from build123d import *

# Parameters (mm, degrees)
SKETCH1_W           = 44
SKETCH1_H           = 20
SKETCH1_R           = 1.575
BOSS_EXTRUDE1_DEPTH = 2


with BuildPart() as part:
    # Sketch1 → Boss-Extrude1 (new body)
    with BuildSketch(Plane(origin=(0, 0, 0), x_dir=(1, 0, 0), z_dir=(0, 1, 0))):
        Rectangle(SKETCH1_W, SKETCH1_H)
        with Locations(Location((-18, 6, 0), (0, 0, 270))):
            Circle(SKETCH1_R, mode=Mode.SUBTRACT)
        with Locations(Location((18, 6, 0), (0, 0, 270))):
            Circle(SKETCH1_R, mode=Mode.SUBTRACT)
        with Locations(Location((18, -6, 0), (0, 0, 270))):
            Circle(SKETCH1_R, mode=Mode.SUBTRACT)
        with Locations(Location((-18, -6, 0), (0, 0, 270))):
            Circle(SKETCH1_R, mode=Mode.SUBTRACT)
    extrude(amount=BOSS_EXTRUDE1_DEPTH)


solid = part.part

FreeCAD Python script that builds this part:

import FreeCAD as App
import Part
import Sketcher

V = App.Vector
Q = App.Units.Quantity

doc = App.newDocument("Part")
body = doc.addObject("PartDesign::Body", "Body")

sketch1 = body.newObject("Sketcher::SketchObject", "Sketch")
sketch1.AttachmentSupport = (doc.getObject("XZ_Plane"), [""])
sketch1.MapMode = "FlatFace"
sketch1.addGeometry(Part.LineSegment(V(-22, -10, 0), V(-22, 10, 0)), False)
sketch1.addGeometry(Part.LineSegment(V(-22, 10, 0), V(22, 10, 0)), False)
sketch1.addGeometry(Part.LineSegment(V(22, 10, 0), V(22, -10, 0)), False)
sketch1.addGeometry(Part.LineSegment(V(22, -10, 0), V(-22, -10, 0)), False)
sketch1.addGeometry(Part.Circle(V(-18, 6, 0), V(0, 0, 1), 1.575), False)
sketch1.addGeometry(Part.Circle(V(18, 6, 0), V(0, 0, 1), 1.575), False)
sketch1.addGeometry(Part.Circle(V(-18, -6, 0), V(0, 0, 1), 1.575), False)
sketch1.addGeometry(Part.Circle(V(18, -6, 0), V(0, 0, 1), 1.575), False)
sketch1.addConstraint(Sketcher.Constraint("Coincident", 0, 2, 1, 1))
sketch1.addConstraint(Sketcher.Constraint("Coincident", 1, 2, 2, 1))
sketch1.addConstraint(Sketcher.Constraint("Coincident", 2, 2, 3, 1))
sketch1.addConstraint(Sketcher.Constraint("Coincident", 3, 2, 0, 1))
sketch1.addConstraint(Sketcher.Constraint("Vertical", 0))
sketch1.addConstraint(Sketcher.Constraint("Horizontal", 1))
sketch1.addConstraint(Sketcher.Constraint("Vertical", 2))
sketch1.addConstraint(Sketcher.Constraint("Horizontal", 3))
sketch1.addConstraint(Sketcher.Constraint("Equal", 4, 5))
sketch1.addConstraint(Sketcher.Constraint("Equal", 5, 6))
sketch1.addConstraint(Sketcher.Constraint("Equal", 6, 7))
sketch1.addConstraint(Sketcher.Constraint("Symmetric", 5, 3, 6, 3, -1, 1))
sketch1.addConstraint(Sketcher.Constraint("Symmetric", 4, 3, 7, 3, -1, 1))
sketch1.addConstraint(Sketcher.Constraint("Symmetric", 0, 2, 2, 2, -1, 1))
sketch1.addConstraint(Sketcher.Constraint("Symmetric", 4, 3, 5, 3, -2))
sketch1.addConstraint(Sketcher.Constraint("Diameter", 4, Q("3.15 mm")))
sketch1.addConstraint(Sketcher.Constraint("DistanceX", 1, 1, 1, 2, Q("44 mm")))
sketch1.addConstraint(Sketcher.Constraint("DistanceY", 0, 1, 0, 2, Q("20 mm")))
sketch1.addConstraint(Sketcher.Constraint("DistanceX", 4, 3, -1, 1, Q("18 mm")))
sketch1.addConstraint(Sketcher.Constraint("DistanceY", -1, 1, 4, 3, Q("6 mm")))
pad1 = body.newObject("PartDesign::Pad", "Pad")
pad1.Profile = sketch1
pad1.Length = 2
pad1.Reversed = True

doc.recompute()
